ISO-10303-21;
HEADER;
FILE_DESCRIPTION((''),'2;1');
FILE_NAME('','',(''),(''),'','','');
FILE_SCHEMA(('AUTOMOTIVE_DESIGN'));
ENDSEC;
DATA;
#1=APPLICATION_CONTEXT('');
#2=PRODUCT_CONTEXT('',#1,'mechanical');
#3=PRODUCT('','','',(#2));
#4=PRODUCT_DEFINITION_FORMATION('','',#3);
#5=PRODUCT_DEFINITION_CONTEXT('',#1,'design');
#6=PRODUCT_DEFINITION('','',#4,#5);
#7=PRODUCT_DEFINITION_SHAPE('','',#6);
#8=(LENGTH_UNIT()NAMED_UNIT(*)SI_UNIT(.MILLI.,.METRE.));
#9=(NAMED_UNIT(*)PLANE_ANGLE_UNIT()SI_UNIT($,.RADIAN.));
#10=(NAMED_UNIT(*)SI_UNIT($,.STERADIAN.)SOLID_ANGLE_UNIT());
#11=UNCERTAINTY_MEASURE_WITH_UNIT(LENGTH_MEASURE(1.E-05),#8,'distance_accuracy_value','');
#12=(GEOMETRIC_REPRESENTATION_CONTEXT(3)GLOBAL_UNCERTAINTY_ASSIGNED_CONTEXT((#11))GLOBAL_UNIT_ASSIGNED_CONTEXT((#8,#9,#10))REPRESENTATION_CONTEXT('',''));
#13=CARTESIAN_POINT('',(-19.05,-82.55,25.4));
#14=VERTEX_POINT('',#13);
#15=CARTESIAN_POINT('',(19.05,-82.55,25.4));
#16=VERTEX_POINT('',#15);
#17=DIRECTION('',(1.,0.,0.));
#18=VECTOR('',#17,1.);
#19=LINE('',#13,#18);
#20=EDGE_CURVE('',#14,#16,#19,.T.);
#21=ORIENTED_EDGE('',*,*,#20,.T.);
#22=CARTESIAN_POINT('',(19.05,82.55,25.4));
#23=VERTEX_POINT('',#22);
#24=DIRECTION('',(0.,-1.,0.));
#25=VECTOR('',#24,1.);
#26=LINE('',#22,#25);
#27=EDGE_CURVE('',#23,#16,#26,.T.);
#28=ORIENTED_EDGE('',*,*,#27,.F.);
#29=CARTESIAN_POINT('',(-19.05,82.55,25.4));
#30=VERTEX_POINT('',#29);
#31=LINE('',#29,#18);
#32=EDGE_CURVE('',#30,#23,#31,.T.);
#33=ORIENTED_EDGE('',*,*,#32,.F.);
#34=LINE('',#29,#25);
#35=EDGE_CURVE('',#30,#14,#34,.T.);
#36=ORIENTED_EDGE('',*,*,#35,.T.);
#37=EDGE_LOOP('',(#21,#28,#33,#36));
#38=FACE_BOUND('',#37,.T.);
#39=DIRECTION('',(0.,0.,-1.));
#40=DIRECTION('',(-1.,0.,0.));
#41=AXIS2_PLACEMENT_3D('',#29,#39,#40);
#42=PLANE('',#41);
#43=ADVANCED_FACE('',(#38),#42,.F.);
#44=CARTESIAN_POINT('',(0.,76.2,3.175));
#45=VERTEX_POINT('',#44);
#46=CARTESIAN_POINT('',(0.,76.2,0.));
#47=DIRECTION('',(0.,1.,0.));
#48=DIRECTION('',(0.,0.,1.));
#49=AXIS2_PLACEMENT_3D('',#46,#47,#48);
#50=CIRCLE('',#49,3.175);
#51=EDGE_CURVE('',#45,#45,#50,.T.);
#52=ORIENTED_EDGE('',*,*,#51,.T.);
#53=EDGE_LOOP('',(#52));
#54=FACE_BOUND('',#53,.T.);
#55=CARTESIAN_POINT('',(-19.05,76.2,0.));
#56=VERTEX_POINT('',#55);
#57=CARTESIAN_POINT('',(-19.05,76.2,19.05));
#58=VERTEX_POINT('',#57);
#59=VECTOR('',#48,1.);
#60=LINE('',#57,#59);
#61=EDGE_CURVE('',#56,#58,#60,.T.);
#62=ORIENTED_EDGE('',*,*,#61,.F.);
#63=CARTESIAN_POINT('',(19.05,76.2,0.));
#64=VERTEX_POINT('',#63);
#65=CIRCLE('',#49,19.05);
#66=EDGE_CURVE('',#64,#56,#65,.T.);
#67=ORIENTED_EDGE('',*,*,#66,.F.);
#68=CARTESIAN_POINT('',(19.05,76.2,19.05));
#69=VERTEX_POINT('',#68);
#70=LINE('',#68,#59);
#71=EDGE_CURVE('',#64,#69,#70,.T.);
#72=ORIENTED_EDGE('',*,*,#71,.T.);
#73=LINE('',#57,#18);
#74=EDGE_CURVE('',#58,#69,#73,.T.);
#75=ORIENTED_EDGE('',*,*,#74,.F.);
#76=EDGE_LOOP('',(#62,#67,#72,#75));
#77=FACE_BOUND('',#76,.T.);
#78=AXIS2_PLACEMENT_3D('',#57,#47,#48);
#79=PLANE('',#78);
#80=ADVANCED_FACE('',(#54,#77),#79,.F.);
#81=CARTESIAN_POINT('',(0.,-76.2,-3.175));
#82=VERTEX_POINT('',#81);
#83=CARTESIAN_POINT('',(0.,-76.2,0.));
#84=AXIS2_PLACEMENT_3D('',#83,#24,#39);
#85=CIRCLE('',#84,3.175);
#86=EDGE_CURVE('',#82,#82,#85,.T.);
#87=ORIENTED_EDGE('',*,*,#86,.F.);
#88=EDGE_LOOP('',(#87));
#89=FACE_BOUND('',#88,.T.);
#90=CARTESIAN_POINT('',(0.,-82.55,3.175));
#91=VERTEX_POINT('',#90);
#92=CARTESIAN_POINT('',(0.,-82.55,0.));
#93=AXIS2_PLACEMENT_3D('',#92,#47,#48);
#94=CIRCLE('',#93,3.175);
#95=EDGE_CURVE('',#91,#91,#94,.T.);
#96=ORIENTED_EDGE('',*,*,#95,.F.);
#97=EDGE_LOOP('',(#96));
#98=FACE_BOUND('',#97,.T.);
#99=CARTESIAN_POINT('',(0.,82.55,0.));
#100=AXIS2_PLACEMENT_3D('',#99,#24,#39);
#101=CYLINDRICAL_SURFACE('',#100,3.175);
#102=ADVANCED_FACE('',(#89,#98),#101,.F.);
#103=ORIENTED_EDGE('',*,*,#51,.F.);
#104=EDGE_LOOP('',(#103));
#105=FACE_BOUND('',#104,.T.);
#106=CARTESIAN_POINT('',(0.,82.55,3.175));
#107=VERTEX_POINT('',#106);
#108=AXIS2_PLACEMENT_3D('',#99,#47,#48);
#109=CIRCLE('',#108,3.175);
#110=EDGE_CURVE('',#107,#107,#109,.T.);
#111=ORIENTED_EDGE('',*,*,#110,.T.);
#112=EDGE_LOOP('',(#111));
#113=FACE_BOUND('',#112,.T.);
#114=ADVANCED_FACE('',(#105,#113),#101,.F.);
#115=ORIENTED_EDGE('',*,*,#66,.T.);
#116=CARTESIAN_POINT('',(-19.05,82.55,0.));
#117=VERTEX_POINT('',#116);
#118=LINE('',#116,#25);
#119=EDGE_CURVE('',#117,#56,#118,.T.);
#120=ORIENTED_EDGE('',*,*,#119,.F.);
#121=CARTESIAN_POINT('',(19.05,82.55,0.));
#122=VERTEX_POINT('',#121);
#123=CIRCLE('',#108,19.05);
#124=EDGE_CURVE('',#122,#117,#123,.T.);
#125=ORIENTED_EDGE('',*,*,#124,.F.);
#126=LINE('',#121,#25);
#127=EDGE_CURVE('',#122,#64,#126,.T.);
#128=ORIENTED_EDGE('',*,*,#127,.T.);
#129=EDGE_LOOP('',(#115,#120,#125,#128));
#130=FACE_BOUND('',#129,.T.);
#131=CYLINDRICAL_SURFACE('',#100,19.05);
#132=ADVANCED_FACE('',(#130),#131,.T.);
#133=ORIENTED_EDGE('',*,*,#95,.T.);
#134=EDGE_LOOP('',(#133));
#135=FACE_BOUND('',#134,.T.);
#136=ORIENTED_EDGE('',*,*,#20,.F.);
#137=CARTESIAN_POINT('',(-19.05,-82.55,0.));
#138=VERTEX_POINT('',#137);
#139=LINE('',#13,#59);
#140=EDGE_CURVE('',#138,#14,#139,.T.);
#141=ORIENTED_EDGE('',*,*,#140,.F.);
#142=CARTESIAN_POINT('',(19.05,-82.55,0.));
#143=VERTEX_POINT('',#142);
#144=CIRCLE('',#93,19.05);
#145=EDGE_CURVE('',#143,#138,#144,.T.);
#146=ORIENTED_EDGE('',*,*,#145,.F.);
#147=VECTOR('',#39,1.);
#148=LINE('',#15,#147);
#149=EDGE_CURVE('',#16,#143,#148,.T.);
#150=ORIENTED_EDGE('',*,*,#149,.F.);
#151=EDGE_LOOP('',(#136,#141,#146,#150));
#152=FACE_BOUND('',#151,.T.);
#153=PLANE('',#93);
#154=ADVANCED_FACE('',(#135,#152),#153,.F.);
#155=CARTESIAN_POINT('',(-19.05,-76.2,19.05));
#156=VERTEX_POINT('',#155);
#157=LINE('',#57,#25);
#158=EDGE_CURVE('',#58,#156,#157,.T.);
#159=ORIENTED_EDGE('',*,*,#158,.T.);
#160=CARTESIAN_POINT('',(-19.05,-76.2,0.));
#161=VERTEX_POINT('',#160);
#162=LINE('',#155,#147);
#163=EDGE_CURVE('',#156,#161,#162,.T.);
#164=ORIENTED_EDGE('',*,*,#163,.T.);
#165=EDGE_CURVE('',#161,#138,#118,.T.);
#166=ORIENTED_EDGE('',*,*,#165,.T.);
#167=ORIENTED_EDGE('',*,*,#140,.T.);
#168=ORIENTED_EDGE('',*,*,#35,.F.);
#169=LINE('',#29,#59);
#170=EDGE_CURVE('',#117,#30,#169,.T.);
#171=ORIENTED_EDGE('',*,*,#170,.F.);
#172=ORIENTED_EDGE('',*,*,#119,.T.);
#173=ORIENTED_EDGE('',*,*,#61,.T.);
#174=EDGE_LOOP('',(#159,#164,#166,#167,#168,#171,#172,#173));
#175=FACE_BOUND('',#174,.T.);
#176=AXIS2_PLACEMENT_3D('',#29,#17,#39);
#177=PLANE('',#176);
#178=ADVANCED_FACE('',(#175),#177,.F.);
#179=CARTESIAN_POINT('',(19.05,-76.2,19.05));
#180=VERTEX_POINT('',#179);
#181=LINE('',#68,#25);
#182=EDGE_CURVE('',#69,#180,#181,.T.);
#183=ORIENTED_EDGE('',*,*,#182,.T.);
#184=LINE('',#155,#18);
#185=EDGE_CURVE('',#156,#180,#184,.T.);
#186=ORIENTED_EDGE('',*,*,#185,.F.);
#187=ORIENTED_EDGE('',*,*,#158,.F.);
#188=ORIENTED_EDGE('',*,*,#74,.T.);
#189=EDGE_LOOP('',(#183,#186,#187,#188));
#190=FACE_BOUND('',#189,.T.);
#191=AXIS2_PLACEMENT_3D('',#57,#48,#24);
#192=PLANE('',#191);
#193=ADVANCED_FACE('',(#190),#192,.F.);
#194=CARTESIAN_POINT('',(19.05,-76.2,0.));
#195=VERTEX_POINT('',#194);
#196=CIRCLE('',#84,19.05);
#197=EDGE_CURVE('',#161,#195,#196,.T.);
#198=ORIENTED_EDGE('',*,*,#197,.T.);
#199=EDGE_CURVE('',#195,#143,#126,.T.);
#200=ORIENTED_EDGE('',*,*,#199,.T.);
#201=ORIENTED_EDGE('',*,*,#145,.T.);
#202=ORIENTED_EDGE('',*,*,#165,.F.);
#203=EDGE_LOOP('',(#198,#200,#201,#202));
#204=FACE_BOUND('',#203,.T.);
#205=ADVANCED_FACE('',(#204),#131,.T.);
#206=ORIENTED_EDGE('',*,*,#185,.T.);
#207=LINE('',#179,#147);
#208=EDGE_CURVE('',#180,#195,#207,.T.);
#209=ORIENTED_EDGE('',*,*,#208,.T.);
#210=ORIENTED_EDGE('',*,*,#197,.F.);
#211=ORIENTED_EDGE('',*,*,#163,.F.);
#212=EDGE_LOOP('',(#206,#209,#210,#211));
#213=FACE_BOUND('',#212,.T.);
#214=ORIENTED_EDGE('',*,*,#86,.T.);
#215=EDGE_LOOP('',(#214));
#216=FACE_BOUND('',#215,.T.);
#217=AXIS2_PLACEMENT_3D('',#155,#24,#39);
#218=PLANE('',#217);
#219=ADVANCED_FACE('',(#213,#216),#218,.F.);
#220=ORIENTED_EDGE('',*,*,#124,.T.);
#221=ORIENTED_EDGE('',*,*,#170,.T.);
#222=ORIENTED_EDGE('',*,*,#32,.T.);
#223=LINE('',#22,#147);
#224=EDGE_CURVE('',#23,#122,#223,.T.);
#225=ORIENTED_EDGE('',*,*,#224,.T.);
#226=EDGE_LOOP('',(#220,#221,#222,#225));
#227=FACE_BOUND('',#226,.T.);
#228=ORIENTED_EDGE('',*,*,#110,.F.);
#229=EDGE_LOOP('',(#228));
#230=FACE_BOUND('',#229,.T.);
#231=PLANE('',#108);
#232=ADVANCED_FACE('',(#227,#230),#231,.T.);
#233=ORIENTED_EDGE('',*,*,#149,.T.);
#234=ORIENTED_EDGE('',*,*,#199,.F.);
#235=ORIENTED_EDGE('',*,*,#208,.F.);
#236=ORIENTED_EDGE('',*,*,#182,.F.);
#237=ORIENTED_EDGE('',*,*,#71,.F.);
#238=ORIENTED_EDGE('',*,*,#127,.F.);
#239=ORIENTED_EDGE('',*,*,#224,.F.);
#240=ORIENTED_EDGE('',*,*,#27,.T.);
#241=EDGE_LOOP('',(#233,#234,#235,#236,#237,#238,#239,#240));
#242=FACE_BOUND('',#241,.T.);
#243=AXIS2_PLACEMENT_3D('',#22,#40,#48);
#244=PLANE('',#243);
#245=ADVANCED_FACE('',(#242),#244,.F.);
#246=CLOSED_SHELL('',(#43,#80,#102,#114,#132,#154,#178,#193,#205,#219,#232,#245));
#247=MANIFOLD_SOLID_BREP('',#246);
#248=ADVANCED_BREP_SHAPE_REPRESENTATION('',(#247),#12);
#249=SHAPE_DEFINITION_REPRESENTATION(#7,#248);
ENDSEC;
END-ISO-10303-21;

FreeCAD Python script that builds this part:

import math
import FreeCAD as App
import Part
import Sketcher
Q = App.Units.Quantity


def add_polygon(sketch, points):
    """Adds a closed chain of lines whose ends are joined by coincident constraints."""
    first, n = sketch.GeometryCount, len(points)
    for a, b in zip(points, points[1:] + points[:1]):
        sketch.addGeometry(Part.LineSegment(App.Vector(*a, 0), App.Vector(*b, 0)), False)
    for i in range(n):
        sketch.addConstraint(Sketcher.Constraint("Coincident", first + i, 2, first + (i + 1) % n, 1))

doc = App.newDocument("Part")
body = doc.addObject("PartDesign::Body", "Body")

sketch1 = doc.addObject("Sketcher::SketchObject", "Sketch")
body.addObject(sketch1)
sketch1.AttachmentSupport = (doc.XZ_Plane, [""])
sketch1.MapMode = "FlatFace"
sketch1.addGeometry([
    Part.LineSegment(App.Vector(-19.1, 25.4, 0), App.Vector(19.1, 25.4, 0)),
    Part.LineSegment(App.Vector(19.1, 25.4, 0), App.Vector(19.1, 0, 0)),
    Part.ArcOfCircle(Part.Circle(App.Vector(0, 0, 0), App.Vector(0, 0, 1), 19.1), math.radians(180), math.radians(360)),
    Part.LineSegment(App.Vector(-19.1, 0, 0), App.Vector(-19.1, 25.4, 0)),
    Part.Circle(App.Vector(0, 0, 0), App.Vector(0, 0, 1), 3.2),
], False)
sketch1.addConstraint([
    Sketcher.Constraint("Coincident", 0, 2, 1, 1),
    Sketcher.Constraint("Tangent", 1, 2, 2, 2),
    Sketcher.Constraint("Tangent", 2, 1, 3, 1),
    Sketcher.Constraint("Coincident", 3, 2, 0, 1),
    Sketcher.Constraint("Horizontal", 0),
    Sketcher.Constraint("Vertical", 1),
    Sketcher.Constraint("Vertical", 3),
    Sketcher.Constraint("Coincident", 2, 3, -1, 1),
    Sketcher.Constraint("Coincident", 4, 3, -1, 1),
    Sketcher.Constraint("Diameter", 4, Q("0.25 in")),
    Sketcher.Constraint("DistanceY", 1, 2, 1, 1, Q("1 in")),
    Sketcher.Constraint("Radius", 2, Q("0.75 in")),
])
pad1 = doc.addObject("PartDesign::Pad", "Pad")
body.addObject(pad1)
pad1.Profile = sketch1
pad1.Length = Q("6.5 in")
pad1.Midplane = True

sketch2 = doc.addObject("Sketcher::SketchObject", "Sketch001")
body.addObject(sketch2)
sketch2.AttachmentSupport = (doc.YZ_Plane, [""])
sketch2.MapMode = "FlatFace"
sketch2.AttachmentOffset = App.Placement(App.Vector(0, 0, 0.75 * 25.4), App.Rotation())
add_polygon(sketch2, [(76, 19), (-76, 19), (-76, -19), (76, -19)])
sketch2.addConstraint([
    Sketcher.Constraint("Horizontal", 0),
    Sketcher.Constraint("Vertical", 1),
    Sketcher.Constraint("Horizontal", 2),
    Sketcher.Constraint("Vertical", 3),
    Sketcher.Constraint("Symmetric", 0, 2, 2, 2, -1, 1),
    Sketcher.Constraint("DistanceX", 0, 2, 0, 1, Q("6 in")),
    Sketcher.Constraint("DistanceY", 1, 2, 1, 1, Q("1.5 in")),
])
pocket1 = doc.addObject("PartDesign::Pocket", "Pocket")
body.addObject(pocket1)
pocket1.Profile = sketch2
pocket1.Type = "ThroughAll"

doc.recompute()
